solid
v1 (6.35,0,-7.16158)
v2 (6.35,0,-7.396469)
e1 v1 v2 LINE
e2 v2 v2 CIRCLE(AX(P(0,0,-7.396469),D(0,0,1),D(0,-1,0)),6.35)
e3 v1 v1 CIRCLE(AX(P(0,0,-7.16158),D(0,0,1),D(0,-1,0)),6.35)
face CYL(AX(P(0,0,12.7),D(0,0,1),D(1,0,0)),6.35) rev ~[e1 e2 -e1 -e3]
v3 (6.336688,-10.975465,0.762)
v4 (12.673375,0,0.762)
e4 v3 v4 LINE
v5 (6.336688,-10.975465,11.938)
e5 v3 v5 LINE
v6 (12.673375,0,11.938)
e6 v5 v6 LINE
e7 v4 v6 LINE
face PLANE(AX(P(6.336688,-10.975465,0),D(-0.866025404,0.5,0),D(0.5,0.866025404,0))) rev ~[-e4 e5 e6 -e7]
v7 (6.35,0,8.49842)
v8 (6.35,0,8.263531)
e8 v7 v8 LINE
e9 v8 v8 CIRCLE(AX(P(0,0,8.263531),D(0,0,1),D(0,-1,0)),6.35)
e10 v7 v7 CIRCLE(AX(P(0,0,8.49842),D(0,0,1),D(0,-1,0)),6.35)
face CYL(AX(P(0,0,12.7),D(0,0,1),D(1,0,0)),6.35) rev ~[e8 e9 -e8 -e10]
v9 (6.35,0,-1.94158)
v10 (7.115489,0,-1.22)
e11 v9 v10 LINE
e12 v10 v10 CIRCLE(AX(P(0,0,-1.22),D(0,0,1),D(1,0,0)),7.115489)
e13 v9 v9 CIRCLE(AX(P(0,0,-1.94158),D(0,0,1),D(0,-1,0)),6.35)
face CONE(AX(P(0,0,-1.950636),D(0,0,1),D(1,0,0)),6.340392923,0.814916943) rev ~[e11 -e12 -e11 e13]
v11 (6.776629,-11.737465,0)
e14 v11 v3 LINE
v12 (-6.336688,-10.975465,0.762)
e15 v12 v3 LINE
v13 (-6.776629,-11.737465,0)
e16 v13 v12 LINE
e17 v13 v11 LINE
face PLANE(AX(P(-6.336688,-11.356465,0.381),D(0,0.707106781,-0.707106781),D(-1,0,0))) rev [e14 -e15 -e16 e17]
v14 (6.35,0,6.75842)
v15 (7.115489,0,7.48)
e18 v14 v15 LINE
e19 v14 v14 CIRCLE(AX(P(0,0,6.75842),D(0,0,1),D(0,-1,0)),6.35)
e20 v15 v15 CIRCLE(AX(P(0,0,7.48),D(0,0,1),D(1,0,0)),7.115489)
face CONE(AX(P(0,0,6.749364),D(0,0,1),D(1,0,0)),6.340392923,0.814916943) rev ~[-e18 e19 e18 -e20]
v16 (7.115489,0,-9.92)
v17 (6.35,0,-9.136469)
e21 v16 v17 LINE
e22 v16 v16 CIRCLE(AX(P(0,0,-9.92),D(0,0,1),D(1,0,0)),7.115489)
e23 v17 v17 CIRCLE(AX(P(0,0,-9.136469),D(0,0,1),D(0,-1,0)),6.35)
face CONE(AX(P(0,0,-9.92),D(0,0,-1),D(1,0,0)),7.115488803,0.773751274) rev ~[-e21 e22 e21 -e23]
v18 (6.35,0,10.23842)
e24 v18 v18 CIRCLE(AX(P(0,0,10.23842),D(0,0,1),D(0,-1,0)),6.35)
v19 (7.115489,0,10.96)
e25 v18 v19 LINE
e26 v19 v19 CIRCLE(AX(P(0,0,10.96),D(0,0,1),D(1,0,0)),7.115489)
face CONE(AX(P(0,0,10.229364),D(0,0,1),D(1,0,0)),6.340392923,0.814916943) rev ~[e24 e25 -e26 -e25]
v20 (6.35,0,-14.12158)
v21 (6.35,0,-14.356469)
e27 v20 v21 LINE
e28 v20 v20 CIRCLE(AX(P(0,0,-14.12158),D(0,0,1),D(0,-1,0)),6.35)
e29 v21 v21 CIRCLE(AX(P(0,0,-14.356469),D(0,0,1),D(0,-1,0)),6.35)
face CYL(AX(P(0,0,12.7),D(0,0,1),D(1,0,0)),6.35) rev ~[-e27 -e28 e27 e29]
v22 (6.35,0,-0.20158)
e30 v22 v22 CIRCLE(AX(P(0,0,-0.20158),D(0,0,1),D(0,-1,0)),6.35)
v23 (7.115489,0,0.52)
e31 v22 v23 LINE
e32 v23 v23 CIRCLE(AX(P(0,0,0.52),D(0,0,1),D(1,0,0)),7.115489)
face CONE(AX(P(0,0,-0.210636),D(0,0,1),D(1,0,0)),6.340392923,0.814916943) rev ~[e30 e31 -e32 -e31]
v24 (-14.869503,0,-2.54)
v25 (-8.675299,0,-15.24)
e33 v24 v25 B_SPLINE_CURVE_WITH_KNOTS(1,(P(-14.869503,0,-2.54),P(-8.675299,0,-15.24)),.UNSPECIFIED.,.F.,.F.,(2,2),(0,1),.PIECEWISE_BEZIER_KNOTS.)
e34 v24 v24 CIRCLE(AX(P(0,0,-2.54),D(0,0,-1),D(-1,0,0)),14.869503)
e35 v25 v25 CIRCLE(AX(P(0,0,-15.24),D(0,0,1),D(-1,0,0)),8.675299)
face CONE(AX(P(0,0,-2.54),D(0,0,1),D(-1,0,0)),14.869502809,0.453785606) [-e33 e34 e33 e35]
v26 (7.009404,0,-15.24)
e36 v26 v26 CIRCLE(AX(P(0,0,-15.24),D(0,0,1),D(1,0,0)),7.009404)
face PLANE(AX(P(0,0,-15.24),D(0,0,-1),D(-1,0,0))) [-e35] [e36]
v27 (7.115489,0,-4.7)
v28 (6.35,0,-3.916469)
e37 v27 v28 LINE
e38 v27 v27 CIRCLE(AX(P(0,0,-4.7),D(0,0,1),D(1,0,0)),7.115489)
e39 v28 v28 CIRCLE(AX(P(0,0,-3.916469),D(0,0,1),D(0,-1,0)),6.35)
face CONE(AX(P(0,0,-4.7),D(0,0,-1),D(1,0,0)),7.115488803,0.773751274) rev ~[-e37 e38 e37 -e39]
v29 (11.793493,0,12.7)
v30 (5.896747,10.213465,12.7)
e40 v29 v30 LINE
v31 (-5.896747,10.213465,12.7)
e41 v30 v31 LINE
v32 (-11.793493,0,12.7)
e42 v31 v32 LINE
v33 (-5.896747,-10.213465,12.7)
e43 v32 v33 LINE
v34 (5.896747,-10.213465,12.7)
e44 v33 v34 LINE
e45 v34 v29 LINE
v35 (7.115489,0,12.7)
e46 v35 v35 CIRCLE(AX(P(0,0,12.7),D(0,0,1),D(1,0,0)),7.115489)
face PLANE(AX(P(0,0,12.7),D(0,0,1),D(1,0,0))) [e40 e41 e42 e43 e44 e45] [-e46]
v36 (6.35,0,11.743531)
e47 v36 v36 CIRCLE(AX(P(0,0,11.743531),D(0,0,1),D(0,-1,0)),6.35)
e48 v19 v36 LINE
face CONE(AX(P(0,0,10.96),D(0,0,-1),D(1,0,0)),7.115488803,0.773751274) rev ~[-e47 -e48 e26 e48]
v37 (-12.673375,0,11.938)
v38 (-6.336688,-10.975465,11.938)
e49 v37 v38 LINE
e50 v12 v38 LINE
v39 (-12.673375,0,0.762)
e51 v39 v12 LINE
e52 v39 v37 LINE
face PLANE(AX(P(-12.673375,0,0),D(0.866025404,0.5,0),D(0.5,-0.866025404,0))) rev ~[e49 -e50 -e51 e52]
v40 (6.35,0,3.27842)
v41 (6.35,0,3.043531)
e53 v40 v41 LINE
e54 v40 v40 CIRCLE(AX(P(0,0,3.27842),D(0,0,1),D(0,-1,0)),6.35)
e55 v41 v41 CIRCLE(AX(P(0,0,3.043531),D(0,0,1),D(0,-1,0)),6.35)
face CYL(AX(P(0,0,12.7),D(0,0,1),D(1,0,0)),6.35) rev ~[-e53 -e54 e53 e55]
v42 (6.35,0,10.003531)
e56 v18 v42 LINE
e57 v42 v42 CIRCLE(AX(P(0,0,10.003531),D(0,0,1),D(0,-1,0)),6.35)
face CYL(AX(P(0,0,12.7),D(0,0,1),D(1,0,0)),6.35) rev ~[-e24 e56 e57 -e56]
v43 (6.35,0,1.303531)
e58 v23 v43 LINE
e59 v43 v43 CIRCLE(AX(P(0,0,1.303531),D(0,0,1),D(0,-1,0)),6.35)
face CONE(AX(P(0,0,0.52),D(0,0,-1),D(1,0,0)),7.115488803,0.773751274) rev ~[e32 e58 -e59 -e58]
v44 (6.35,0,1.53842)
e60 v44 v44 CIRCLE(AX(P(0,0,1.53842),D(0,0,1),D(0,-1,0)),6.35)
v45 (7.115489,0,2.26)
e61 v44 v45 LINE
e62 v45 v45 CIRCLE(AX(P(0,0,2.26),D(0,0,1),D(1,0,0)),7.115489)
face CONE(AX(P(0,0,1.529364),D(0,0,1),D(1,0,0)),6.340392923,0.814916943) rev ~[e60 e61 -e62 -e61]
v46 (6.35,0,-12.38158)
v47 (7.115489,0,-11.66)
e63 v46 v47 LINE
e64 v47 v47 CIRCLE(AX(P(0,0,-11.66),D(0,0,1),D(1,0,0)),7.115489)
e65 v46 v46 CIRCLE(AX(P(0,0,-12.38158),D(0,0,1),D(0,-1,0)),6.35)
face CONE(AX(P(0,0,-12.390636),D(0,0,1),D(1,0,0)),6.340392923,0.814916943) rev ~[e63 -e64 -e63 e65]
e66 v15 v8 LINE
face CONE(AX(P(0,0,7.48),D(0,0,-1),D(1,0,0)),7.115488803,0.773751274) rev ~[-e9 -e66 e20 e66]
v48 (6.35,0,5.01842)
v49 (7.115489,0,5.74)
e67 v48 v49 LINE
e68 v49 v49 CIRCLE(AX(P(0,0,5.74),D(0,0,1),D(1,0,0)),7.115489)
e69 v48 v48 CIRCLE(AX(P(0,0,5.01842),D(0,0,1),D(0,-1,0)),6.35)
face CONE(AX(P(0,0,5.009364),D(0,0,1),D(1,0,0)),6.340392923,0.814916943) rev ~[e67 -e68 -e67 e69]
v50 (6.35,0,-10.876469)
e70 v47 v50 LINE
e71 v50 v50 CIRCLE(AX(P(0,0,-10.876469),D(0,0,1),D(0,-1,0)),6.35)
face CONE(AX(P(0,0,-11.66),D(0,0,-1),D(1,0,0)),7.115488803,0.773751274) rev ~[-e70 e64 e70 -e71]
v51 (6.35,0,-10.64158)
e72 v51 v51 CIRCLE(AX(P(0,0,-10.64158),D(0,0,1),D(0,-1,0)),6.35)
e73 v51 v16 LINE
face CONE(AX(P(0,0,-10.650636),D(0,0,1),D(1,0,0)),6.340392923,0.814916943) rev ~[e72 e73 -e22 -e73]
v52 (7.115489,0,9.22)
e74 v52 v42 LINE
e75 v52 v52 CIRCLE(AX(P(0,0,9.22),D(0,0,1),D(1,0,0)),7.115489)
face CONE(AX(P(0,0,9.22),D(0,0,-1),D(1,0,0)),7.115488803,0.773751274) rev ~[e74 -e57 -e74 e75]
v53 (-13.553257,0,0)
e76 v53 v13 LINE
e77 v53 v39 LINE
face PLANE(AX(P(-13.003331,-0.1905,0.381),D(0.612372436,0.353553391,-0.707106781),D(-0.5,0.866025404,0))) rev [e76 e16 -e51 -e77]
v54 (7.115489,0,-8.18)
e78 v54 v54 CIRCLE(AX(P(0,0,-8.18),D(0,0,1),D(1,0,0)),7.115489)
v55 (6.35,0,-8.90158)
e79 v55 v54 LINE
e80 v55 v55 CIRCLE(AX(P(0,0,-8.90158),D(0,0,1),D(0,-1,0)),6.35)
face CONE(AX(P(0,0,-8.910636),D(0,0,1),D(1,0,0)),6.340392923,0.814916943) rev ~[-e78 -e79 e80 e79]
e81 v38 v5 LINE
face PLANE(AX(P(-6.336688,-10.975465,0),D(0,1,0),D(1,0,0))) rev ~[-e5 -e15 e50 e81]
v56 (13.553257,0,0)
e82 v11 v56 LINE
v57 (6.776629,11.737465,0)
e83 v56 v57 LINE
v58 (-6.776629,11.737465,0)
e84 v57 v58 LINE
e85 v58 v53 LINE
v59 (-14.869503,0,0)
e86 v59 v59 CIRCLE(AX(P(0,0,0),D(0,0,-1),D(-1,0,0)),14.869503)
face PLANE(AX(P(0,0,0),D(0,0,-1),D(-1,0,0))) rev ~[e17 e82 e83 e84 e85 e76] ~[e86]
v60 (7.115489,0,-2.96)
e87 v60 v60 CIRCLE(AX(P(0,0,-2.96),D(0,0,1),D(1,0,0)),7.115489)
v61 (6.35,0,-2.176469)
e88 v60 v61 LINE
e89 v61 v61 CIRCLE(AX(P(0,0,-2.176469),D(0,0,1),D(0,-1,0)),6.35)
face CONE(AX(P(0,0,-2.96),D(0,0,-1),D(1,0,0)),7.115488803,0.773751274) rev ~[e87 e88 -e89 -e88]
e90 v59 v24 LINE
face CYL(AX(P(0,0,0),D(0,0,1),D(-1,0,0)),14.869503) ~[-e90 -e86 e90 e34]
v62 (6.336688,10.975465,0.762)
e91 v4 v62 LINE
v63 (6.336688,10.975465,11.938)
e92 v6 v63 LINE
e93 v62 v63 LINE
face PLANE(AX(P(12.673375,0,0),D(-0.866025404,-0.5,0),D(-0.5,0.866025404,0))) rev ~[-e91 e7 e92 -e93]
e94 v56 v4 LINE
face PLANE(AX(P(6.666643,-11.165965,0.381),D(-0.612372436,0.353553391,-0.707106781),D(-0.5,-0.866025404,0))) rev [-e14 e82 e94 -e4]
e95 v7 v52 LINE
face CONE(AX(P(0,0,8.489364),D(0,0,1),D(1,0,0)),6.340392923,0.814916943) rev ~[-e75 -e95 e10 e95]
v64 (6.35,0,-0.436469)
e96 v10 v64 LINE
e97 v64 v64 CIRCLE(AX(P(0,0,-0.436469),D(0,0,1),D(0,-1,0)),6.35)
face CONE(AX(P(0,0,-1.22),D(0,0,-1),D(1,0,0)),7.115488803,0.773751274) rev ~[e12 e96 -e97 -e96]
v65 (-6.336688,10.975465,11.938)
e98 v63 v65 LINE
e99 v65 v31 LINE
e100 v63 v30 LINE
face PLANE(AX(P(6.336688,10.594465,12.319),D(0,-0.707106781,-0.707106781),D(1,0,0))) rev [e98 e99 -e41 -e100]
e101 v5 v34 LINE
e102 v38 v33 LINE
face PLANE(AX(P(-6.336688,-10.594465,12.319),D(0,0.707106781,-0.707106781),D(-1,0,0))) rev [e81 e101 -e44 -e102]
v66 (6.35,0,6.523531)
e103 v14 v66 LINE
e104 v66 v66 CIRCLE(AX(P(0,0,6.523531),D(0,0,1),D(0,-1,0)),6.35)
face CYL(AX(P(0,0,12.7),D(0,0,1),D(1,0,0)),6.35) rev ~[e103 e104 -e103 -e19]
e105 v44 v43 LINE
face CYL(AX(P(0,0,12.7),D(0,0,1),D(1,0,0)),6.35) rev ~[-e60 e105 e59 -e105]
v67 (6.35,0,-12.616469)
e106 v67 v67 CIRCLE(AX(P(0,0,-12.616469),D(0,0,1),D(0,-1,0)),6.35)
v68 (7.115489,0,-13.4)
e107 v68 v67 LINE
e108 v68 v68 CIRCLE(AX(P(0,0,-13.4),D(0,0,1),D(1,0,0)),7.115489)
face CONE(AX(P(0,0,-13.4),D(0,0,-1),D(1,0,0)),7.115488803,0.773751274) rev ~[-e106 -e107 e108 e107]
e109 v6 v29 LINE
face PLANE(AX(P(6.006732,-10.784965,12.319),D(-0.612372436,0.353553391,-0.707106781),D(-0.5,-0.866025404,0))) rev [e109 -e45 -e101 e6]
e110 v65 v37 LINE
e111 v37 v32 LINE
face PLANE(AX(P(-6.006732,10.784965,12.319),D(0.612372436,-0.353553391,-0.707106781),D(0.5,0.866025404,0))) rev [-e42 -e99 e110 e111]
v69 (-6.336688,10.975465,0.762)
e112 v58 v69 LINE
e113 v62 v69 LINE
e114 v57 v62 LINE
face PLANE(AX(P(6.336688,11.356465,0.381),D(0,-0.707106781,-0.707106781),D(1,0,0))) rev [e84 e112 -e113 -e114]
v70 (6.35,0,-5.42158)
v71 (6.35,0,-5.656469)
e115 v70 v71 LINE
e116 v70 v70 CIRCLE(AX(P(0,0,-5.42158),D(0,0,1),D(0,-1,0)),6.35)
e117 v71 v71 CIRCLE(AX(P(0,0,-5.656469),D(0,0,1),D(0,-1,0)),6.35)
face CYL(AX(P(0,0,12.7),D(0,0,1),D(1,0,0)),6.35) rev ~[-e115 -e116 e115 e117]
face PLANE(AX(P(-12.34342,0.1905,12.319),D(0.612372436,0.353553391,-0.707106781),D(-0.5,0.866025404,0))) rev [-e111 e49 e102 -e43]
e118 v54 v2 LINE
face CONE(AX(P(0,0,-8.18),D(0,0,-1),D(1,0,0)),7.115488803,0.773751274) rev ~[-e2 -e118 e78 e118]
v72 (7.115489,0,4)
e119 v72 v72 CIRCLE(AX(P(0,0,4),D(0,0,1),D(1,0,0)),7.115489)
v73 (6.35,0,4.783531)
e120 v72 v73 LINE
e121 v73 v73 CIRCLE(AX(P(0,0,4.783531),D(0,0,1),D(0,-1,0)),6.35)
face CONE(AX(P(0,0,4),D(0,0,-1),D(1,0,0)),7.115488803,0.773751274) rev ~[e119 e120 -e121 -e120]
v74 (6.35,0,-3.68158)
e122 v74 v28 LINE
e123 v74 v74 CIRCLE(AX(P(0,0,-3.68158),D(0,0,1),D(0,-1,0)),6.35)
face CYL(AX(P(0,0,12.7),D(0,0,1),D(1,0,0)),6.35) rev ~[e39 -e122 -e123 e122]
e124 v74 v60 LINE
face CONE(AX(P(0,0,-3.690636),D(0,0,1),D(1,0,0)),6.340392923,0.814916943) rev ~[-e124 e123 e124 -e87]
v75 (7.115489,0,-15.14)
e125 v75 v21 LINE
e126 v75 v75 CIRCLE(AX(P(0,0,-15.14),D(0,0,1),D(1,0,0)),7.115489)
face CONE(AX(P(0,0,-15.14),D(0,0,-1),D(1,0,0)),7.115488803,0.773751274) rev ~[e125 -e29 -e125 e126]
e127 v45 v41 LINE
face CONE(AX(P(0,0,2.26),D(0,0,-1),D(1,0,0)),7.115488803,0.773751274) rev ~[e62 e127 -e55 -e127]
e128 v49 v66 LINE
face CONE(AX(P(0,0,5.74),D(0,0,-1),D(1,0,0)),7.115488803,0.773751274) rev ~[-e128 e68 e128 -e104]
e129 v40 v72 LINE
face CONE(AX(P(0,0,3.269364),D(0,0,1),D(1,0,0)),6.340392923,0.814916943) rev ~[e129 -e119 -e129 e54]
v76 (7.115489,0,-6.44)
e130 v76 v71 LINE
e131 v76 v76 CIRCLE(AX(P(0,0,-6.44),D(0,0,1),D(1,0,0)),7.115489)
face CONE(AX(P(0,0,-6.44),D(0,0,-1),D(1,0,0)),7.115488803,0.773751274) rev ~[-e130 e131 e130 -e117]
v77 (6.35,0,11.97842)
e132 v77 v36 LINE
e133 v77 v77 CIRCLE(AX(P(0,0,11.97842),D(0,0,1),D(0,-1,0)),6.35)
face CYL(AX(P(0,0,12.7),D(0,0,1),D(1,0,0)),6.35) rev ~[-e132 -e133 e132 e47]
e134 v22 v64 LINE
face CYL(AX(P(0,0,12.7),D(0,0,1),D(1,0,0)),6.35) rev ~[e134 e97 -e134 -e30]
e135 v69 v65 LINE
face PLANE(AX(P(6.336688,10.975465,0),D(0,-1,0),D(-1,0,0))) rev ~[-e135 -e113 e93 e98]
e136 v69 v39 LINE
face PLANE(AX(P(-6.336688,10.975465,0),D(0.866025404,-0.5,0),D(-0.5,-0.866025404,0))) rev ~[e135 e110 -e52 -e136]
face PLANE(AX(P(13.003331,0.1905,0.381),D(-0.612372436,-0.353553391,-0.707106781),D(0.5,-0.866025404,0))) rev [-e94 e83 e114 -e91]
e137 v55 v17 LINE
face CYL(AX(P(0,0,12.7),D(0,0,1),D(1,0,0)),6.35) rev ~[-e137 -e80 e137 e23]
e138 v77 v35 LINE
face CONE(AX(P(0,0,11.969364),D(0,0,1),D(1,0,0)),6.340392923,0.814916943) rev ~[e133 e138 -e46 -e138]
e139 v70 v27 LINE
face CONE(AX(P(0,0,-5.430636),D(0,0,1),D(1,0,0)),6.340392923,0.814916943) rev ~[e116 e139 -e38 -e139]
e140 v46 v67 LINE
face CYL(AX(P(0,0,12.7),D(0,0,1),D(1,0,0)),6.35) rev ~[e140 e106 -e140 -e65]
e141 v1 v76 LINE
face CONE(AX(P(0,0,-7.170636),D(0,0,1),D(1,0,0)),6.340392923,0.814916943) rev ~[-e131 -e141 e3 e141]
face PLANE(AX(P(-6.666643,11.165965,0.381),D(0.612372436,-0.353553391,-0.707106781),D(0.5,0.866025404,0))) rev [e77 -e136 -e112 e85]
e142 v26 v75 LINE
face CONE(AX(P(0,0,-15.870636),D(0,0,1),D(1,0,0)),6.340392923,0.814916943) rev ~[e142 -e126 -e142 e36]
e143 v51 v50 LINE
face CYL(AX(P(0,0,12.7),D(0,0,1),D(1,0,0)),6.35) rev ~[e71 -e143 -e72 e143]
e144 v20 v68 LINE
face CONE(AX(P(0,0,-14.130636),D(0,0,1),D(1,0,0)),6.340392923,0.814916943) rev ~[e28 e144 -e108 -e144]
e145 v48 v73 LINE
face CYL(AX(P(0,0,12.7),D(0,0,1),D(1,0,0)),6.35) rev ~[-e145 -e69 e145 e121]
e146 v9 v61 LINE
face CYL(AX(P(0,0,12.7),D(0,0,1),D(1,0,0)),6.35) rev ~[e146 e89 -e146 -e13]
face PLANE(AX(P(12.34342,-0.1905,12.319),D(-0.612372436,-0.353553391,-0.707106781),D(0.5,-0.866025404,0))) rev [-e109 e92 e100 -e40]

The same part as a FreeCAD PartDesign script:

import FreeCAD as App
import Part
import Sketcher
Q = App.Units.Quantity


def edges_at(feature, points):
    """Names of the edges that pass closest to the given points."""
    edges = feature.Shape.Edges
    near = lambda p: min(range(len(edges)), key=lambda i: edges[i].distToShape(Part.Vertex(*p))[0])
    return sorted({f"Edge{near(p) + 1}" for p in points})

doc = App.newDocument("Part")
body = doc.addObject("PartDesign::Body", "Body")

# Sketch on XY plane
sketch1 = doc.addObject("Sketcher::SketchObject", "Sketch")
body.addObject(sketch1)
sketch1.AttachmentSupport = (doc.XY_Plane, [""])
sketch1.MapMode = "FlatFace"
sketch1.addGeometry([
    Part.LineSegment(App.Vector(12.673375, 0, 0), App.Vector(6.336688, 10.975465, 0)),  # 0
    Part.LineSegment(App.Vector(6.336688, 10.975465, 0), App.Vector(-6.336688, 10.975465, 0)),  # 1
    Part.LineSegment(App.Vector(-6.336688, 10.975465, 0), App.Vector(-12.673375, 0, 0)),  # 2
    Part.LineSegment(App.Vector(-12.673375, 0, 0), App.Vector(-6.336688, -10.975465, 0)),  # 3
    Part.LineSegment(App.Vector(-6.336688, -10.975465, 0), App.Vector(6.336688, -10.975465, 0)),  # 4
    Part.LineSegment(App.Vector(6.336688, -10.975465, 0), App.Vector(12.673375, 0, 0)),  # 5
], False)
sketch1.addConstraint([
    Sketcher.Constraint("Coincident", 0, 2, 1, 1),
    Sketcher.Constraint("Coincident", 1, 2, 2, 1),
    Sketcher.Constraint("Coincident", 2, 2, 3, 1),
    Sketcher.Constraint("Coincident", 3, 2, 4, 1),
    Sketcher.Constraint("Coincident", 4, 2, 5, 1),
    Sketcher.Constraint("Coincident", 5, 2, 0, 1),
    Sketcher.Constraint("Horizontal", 1),
    Sketcher.Constraint("Horizontal", 4),
    Sketcher.Constraint("Symmetric", 0, 2, 3, 2, -1, 1),
    Sketcher.Constraint("Symmetric", 2, 2, 5, 2, -1, 1),
    Sketcher.Constraint("PointOnObject", 2, 2, -1),
    Sketcher.Constraint("Parallel", 2, 5),
    Sketcher.Constraint("Vertical", 1, 2, 3, 2),
    Sketcher.Constraint("Angle", 0, Q("120 deg")),
    Sketcher.Constraint("DistanceX", 1, 2, 1, 1, Q("12.673375 mm")),
    Sketcher.Constraint("DistanceY", 3, 2, 1, 2, Q("21.95093 mm")),
])
pad1 = doc.addObject("PartDesign::Pad", "Pad")
body.addObject(pad1)
pad1.Profile = sketch1
pad1.Length = Q("0.5 in")

# Sketch on XY plane
sketch2 = doc.addObject("Sketcher::SketchObject", "Sketch001")
body.addObject(sketch2)
sketch2.AttachmentSupport = (doc.XY_Plane, [""])
sketch2.MapMode = "FlatFace"
sketch2.addGeometry(Part.Circle(App.Vector(0, 0, 0), App.Vector(0, 0, 1), 14.869503), False)
sketch2.addConstraint([
    Sketcher.Constraint("Coincident", 0, 3, -1, 1),
    Sketcher.Constraint("Diameter", 0, Q("29.739006 mm")),
])
pad2 = doc.addObject("PartDesign::Pad", "Pad001")
body.addObject(pad2)
pad2.Profile = sketch2
pad2.Length = Q("0.1 in")
pad2.Reversed = True
doc.recompute()

chamfer = doc.addObject("PartDesign::Chamfer", "Chamfer")
body.addObject(chamfer)
chamfer.Base = (pad2, edges_at(pad2, [
    (0, -10.975, 0),
    (-9.505, -5.488, 0),
    (-9.505, 5.488, 0),
    (0, 10.975, 0),
    (9.505, 5.488, 0),
    (9.505, -5.488, 0),
]))
chamfer.Size = Q("0.03 in")
doc.recompute()

chamfer2 = doc.addObject("PartDesign::Chamfer", "Chamfer001")
body.addObject(chamfer2)
chamfer2.Base = (chamfer, edges_at(chamfer, [
    (0, 10.975, 12.7),
    (-9.505, 5.488, 12.7),
    (-9.505, -5.488, 12.7),
    (0, -10.975, 12.7),
    (9.505, -5.488, 12.7),
    (9.505, 5.488, 12.7),
]))
chamfer2.Size = Q("0.03 in")

# Sketch on XY plane
sketch3 = doc.addObject("Sketcher::SketchObject", "Sketch002")
body.addObject(sketch3)
sketch3.AttachmentSupport = (doc.XY_Plane, [""])
sketch3.MapMode = "FlatFace"
sketch3.AttachmentOffset = App.Placement(App.Vector(0, 0, -0.1 * 25.4), App.Rotation())
sketch3.addGeometry(Part.Circle(App.Vector(0, 0, 0), App.Vector(0, 0, 1), 14.869503), False)
sketch3.addConstraint([
    Sketcher.Constraint("Coincident", 0, 3, -1, 1),
    Sketcher.Constraint("Diameter", 0, Q("29.739006 mm")),
])
pad3 = doc.addObject("PartDesign::Pad", "Pad002")
body.addObject(pad3)
pad3.Profile = sketch3
pad3.Length = Q("0.5 in")
pad3.Reversed = True
pad3.TaperAngle = -26

# Sketch on XY plane
sketch4 = doc.addObject("Sketcher::SketchObject", "Sketch003")
body.addObject(sketch4)
sketch4.AttachmentSupport = (doc.XY_Plane, [""])
sketch4.MapMode = "FlatFace"
sketch4.AttachmentOffset = App.Placement(App.Vector(0, 0, 0.5 * 25.4), App.Rotation())
sketch4.addGeometry(Part.Circle(App.Vector(0, 0, 0), App.Vector(0, 0, 1), 6.35), False)
sketch4.addConstraint([
    Sketcher.Constraint("Coincident", 0, 3, -1, 1),
    Sketcher.Constraint("Diameter", 0, Q("0.5 in")),
])
pocket1 = doc.addObject("PartDesign::Pocket", "Pocket")
body.addObject(pocket1)
pocket1.Profile = sketch4
pocket1.Type = "ThroughAll"

# Sketch on XZ plane
sketch5 = doc.addObject("Sketcher::SketchObject", "Sketch004")
body.addObject(sketch5)
sketch5.AttachmentSupport = (doc.XZ_Plane, [""])
sketch5.MapMode = "FlatFace"
sketch5.addGeometry([
    Part.LineSegment(App.Vector(7.115489, 12.7, 0), App.Vector(6.340393, 11.969364, 0)),
    Part.LineSegment(App.Vector(6.340393, 11.969364, 0), App.Vector(5.591489, 12.7, 0)),
    Part.LineSegment(App.Vector(5.591489, 12.7, 0), App.Vector(6.340393, 13.493364, 0)),
    Part.LineSegment(App.Vector(6.340393, 13.493364, 0), App.Vector(7.115489, 12.7, 0)),
], False)
sketch5.addConstraint([
    Sketcher.Constraint("Coincident", 0, 2, 1, 1),
    Sketcher.Constraint("Coincident", 1, 2, 2, 1),
    Sketcher.Constraint("Coincident", 2, 2, 3, 1),
    Sketcher.Constraint("Coincident", 3, 2, 0, 1),
    Sketcher.Constraint("Horizontal", 1, 2, 3, 2),
    Sketcher.Constraint("Vertical", 0, 2, 2, 2),
    Sketcher.Constraint("DistanceY", -1, 1, 1, 2, Q("0.5 in")),
    Sketcher.Constraint("DistanceY", 0, 2, 2, 2, Q("0.06 in")),
    Sketcher.Constraint("DistanceX", 1, 2, 3, 2, Q("0.06 in")),
    Sketcher.Constraint("Distance", 2, Q("1.091002 mm")),
    Sketcher.Constraint("DistanceX", -1, 1, 1, 2, Q("5.591489 mm")),
    Sketcher.Constraint("Distance", 0, Q("1.065177 mm")),
])
groove = doc.addObject("PartDesign::Groove", "Groove")
body.addObject(groove)
groove.Profile = sketch5
groove.ReferenceAxis = (sketch5, ["V_Axis"])
groove.Angle = 360
doc.recompute()

linearpattern = doc.addObject("PartDesign::LinearPattern", "LinearPattern")
body.addObject(linearpattern)
linearpattern.Originals = [groove]
linearpattern.Direction = (doc.Z_Axis, [""])
linearpattern.Mode = "offset"
linearpattern.Offset = 1.74
linearpattern.Occurrences = 17
linearpattern.Reversed = True
body.Tip = linearpattern

doc.recompute()
